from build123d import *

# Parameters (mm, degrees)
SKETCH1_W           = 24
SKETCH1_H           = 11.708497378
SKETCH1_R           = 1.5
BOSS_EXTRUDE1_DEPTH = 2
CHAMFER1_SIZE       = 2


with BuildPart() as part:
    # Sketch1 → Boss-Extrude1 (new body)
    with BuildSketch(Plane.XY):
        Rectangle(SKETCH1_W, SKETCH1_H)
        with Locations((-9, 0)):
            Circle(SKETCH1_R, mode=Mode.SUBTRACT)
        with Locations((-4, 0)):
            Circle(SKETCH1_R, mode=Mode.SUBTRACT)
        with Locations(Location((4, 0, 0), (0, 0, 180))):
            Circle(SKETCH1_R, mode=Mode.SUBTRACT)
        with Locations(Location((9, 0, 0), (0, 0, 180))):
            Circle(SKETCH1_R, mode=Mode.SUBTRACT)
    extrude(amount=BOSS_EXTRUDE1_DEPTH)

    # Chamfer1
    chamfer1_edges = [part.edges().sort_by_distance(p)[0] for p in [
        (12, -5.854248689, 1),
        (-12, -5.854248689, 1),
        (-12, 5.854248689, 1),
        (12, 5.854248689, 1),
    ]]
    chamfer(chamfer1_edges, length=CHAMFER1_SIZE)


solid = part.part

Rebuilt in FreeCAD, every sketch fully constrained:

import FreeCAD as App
import Part
import Sketcher


def edges_at(feature, points):
    """Names of the edges that pass closest to the given points."""
    edges = feature.Shape.Edges
    near = lambda p: min(range(len(edges)), key=lambda i: edges[i].distToShape(Part.Vertex(*p))[0])
    return sorted({f"Edge{near(p) + 1}" for p in points})

doc = App.newDocument("Part")
body = doc.addObject("PartDesign::Body", "Body")

sketch1 = doc.addObject("Sketcher::SketchObject", "Sketch")
body.addObject(sketch1)
sketch1.AttachmentSupport = (doc.XY_Plane, [""])
sketch1.MapMode = "FlatFace"
sketch1.addGeometry(Part.LineSegment(App.Vector(-12, 5.9, 0), App.Vector(-12, -5.9, 0)), False)
sketch1.addGeometry(Part.LineSegment(App.Vector(-12, -5.9, 0), App.Vector(12, -5.9, 0)), False)
sketch1.addGeometry(Part.LineSegment(App.Vector(12, -5.9, 0), App.Vector(12, 5.9, 0)), False)
sketch1.addGeometry(Part.LineSegment(App.Vector(12, 5.9, 0), App.Vector(-12, 5.9, 0)), False)
sketch1.addGeometry(Part.Circle(App.Vector(-9, 0, 0), App.Vector(0, 0, 1), 1.5), False)
sketch1.addGeometry(Part.Circle(App.Vector(-4, 0, 0), App.Vector(0, 0, 1), 1.5), False)
sketch1.addGeometry(Part.Circle(App.Vector(4, 0, 0), App.Vector(0, 0, 1), 1.5), False)
sketch1.addGeometry(Part.Circle(App.Vector(9, 0, 0), App.Vector(0, 0, 1), 1.5), False)
sketch1.addConstraint(Sketcher.Constraint("Coincident", 0, 2, 1, 1))
sketch1.addConstraint(Sketcher.Constraint("Coincident", 1, 2, 2, 1))
sketch1.addConstraint(Sketcher.Constraint("Coincident", 2, 2, 3, 1))
sketch1.addConstraint(Sketcher.Constraint("Coincident", 3, 2, 0, 1))
sketch1.addConstraint(Sketcher.Constraint("Vertical", 0))
sketch1.addConstraint(Sketcher.Constraint("Horizontal", 1))
sketch1.addConstraint(Sketcher.Constraint("Vertical", 2))
sketch1.addConstraint(Sketcher.Constraint("Horizontal", 3))
sketch1.addConstraint(Sketcher.Constraint("Equal", 4, 5))
sketch1.addConstraint(Sketcher.Constraint("Equal", 5, 6))
sketch1.addConstraint(Sketcher.Constraint("Equal", 6, 7))
sketch1.addConstraint(Sketcher.Constraint("Symmetric", 5, 3, 6, 3, -1, 1))
sketch1.addConstraint(Sketcher.Constraint("Symmetric", 4, 3, 7, 3, -1, 1))
sketch1.addConstraint(Sketcher.Constraint("Symmetric", 0, 2, 2, 2, -1, 1))
sketch1.addConstraint(Sketcher.Constraint("PointOnObject", 4, 3, -1))
sketch1.addConstraint(Sketcher.Constraint("PointOnObject", 5, 3, -1))
sketch1.addConstraint(Sketcher.Constraint("Diameter", 4, 3.0))
sketch1.addConstraint(Sketcher.Constraint("DistanceX", 1, 1, 1, 2, 24.0))
sketch1.addConstraint(Sketcher.Constraint("DistanceX", 4, 3, -1, 1, 9.0))
sketch1.addConstraint(Sketcher.Constraint("DistanceX", 5, 3, -1, 1, 4.0))
sketch1.addConstraint(Sketcher.Constraint("DistanceY", 0, 2, 0, 1, 11.708497))
pad1 = doc.addObject("PartDesign::Pad", "Pad")
body.addObject(pad1)
pad1.Profile = sketch1
pad1.Length = 2
doc.recompute()

chamfer = doc.addObject("PartDesign::Chamfer", "Chamfer")
body.addObject(chamfer)
chamfer.Base = (pad1, edges_at(pad1, [
    (12, -5.854, 1),
    (-12, -5.854, 1),
    (-12, 5.854, 1),
    (12, 5.854, 1),
]))
chamfer.Size = 2

doc.recompute()
